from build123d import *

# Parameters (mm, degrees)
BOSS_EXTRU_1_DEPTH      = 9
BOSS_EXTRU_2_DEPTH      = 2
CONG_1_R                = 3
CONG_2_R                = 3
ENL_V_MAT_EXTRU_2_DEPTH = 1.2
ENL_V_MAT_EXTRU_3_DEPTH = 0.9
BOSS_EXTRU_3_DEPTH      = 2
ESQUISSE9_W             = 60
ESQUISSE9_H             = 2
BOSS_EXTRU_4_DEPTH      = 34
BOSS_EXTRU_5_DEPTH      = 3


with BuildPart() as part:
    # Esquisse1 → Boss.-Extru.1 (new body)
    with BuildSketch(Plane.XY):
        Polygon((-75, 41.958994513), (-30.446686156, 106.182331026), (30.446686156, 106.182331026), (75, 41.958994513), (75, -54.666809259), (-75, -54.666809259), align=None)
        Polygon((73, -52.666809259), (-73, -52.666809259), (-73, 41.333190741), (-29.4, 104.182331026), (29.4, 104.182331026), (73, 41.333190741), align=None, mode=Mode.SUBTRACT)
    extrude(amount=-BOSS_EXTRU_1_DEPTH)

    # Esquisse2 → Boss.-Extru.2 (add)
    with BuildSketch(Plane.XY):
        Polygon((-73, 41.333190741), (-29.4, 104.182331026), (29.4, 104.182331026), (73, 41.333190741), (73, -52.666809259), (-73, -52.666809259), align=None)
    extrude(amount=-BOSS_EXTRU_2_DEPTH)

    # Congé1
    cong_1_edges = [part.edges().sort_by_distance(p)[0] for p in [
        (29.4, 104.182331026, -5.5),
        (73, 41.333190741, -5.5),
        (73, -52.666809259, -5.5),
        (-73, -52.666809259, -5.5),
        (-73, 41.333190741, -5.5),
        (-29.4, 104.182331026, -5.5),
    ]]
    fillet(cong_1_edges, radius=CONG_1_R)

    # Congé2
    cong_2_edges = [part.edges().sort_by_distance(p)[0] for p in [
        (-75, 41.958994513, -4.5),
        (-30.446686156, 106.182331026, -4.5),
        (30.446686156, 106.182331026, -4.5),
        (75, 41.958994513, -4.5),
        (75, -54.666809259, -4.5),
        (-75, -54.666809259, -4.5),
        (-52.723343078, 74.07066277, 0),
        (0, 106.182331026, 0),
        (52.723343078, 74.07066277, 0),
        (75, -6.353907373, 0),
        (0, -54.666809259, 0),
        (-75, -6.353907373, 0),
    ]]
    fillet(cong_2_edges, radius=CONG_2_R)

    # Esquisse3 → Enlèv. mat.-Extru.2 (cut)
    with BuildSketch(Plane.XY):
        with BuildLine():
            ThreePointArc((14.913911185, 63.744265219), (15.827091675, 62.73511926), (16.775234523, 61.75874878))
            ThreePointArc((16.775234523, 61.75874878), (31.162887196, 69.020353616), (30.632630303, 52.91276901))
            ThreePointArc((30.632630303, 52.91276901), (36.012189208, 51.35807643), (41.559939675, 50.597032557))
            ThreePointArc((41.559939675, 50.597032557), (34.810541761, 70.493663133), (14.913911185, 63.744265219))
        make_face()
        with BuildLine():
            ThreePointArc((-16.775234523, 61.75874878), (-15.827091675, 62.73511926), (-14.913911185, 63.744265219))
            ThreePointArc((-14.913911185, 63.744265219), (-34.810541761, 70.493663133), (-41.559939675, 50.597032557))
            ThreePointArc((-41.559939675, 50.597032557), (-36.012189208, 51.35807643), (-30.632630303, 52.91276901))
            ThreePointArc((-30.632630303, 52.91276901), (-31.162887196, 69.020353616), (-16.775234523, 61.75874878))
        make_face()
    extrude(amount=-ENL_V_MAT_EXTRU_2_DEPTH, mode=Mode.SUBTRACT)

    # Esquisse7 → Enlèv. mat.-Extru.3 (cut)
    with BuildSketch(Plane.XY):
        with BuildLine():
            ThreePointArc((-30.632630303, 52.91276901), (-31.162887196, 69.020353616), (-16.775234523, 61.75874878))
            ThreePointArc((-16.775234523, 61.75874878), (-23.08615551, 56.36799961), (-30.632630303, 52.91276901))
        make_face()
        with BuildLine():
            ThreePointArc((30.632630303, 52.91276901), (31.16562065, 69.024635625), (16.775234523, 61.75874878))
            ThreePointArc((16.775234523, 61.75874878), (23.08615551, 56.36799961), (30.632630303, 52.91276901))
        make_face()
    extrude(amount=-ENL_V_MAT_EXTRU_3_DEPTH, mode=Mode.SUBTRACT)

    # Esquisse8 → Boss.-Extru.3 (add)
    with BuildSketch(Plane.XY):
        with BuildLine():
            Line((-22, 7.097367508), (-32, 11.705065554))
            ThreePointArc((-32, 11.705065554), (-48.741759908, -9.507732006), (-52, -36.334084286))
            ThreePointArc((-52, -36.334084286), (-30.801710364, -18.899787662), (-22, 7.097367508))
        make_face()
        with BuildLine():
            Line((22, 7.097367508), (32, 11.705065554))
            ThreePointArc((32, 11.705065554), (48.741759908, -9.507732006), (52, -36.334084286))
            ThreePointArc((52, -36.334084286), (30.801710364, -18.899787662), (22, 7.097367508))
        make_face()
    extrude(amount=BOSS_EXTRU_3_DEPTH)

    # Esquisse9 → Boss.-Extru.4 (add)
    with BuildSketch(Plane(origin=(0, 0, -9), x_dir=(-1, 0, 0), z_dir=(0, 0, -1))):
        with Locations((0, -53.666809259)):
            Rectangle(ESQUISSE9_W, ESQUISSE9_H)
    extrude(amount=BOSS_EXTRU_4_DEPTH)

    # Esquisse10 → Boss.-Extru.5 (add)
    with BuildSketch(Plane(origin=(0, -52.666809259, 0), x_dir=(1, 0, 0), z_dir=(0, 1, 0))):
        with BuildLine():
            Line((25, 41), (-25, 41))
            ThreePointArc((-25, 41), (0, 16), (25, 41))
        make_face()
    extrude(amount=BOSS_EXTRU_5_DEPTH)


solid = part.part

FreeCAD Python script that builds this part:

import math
import FreeCAD as App
import Part
import Sketcher

V = App.Vector
Q = App.Units.Quantity


def edges_at(feature, points):
    """Names of the edges that pass closest to the given points."""
    edges = feature.Shape.Edges
    near = lambda p: min(range(len(edges)), key=lambda i: edges[i].distToShape(Part.Vertex(*p))[0])
    return sorted({f"Edge{near(p) + 1}" for p in points})

doc = App.newDocument("Part")
body = doc.addObject("PartDesign::Body", "Body")

# Sketch on XY plane
sketch1 = body.newObject("Sketcher::SketchObject", "Sketch")
sketch1.AttachmentSupport = (doc.getObject("XY_Plane"), [""])
sketch1.MapMode = "FlatFace"
sketch1.addGeometry([
    Part.LineSegment(V(-30.446686, 106.182331, 0), V(-75, 41.958995, 0)),  # 0
    Part.LineSegment(V(-75, 41.958995, 0), V(-75, -54.666809, 0)),  # 1
    Part.LineSegment(V(-75, -54.666809, 0), V(75, -54.666809, 0)),  # 2
    Part.LineSegment(V(75, -54.666809, 0), V(75, 41.958995, 0)),  # 3
    Part.LineSegment(V(75, 41.958995, 0), V(30.446686, 106.182331, 0)),  # 4
    Part.LineSegment(V(30.446686, 106.182331, 0), V(-30.446686, 106.182331, 0)),  # 5
    Part.LineSegment(V(73, -52.666809, 0), V(-73, -52.666809, 0)),  # 6
    Part.LineSegment(V(-73, -52.666809, 0), V(-73, 41.333191, 0)),  # 7
    Part.LineSegment(V(-73, 41.333191, 0), V(-29.4, 104.182331, 0)),  # 8
    Part.LineSegment(V(-29.4, 104.182331, 0), V(29.4, 104.182331, 0)),  # 9
    Part.LineSegment(V(29.4, 104.182331, 0), V(73, 41.333191, 0)),  # 10
    Part.LineSegment(V(73, 41.333191, 0), V(73, -52.666809, 0)),  # 11
], False)
sketch1.addConstraint([
    Sketcher.Constraint("Coincident", 0, 2, 1, 1),
    Sketcher.Constraint("Coincident", 1, 2, 2, 1),
    Sketcher.Constraint("Coincident", 2, 2, 3, 1),
    Sketcher.Constraint("Coincident", 3, 2, 4, 1),
    Sketcher.Constraint("Coincident", 4, 2, 5, 1),
    Sketcher.Constraint("Coincident", 5, 2, 0, 1),
    Sketcher.Constraint("Coincident", 6, 2, 7, 1),
    Sketcher.Constraint("Coincident", 7, 2, 8, 1),
    Sketcher.Constraint("Coincident", 8, 2, 9, 1),
    Sketcher.Constraint("Coincident", 9, 2, 10, 1),
    Sketcher.Constraint("Coincident", 10, 2, 11, 1),
    Sketcher.Constraint("Coincident", 11, 2, 6, 1),
    Sketcher.Constraint("Vertical", 1),
    Sketcher.Constraint("Horizontal", 2),
    Sketcher.Constraint("Vertical", 3),
    Sketcher.Constraint("Horizontal", 5),
    Sketcher.Constraint("Horizontal", 6),
    Sketcher.Constraint("Vertical", 7),
    Sketcher.Constraint("Horizontal", 9),
    Sketcher.Constraint("Vertical", 11),
    Sketcher.Constraint("Symmetric", 0, 2, 3, 2, -2),
    Sketcher.Constraint("Symmetric", 7, 2, 10, 2, -2),
    Sketcher.Constraint("Parallel", 0, 8),
    Sketcher.Constraint("Parallel", 4, 10),
    Sketcher.Constraint("Equal", 0, 4),
    Sketcher.Constraint("DistanceX", 2, 1, 2, 2, Q("150 mm")),
    Sketcher.Constraint("DistanceX", 6, 2, 6, 1, Q("146 mm")),
    Sketcher.Constraint("DistanceY", 7, 1, 7, 2, Q("94 mm")),
    Sketcher.Constraint("DistanceX", 9, 1, 9, 2, Q("58.8 mm")),
    Sketcher.Constraint("DistanceY", 1, 2, 6, 2, Q("2 mm")),
    Sketcher.Constraint("DistanceY", 8, 2, 5, 2, Q("2 mm")),
    Sketcher.Constraint("Angle", 0, Q("-124.75 deg")),
    Sketcher.Constraint("DistanceX", 5, 2, 5, 1, Q("60.893372 mm")),
    Sketcher.Constraint("DistanceY", 1, 2, -1, 1, Q("54.666809 mm")),
])
pad1 = body.newObject("PartDesign::Pad", "Pad")
pad1.Profile = sketch1
pad1.Length = 9
pad1.Reversed = True

# Sketch on XY plane
sketch2 = body.newObject("Sketcher::SketchObject", "Sketch001")
sketch2.AttachmentSupport = (doc.getObject("XY_Plane"), [""])
sketch2.MapMode = "FlatFace"
sketch2.addGeometry([
    Part.LineSegment(V(-29.4, 104.182331, 0), V(-73, 41.333191, 0)),  # 0
    Part.LineSegment(V(-73, 41.333191, 0), V(-73, -52.666809, 0)),  # 1
    Part.LineSegment(V(-73, -52.666809, 0), V(73, -52.666809, 0)),  # 2
    Part.LineSegment(V(73, -52.666809, 0), V(73, 41.333191, 0)),  # 3
    Part.LineSegment(V(73, 41.333191, 0), V(29.4, 104.182331, 0)),  # 4
    Part.LineSegment(V(29.4, 104.182331, 0), V(-29.4, 104.182331, 0)),  # 5
], False)
sketch2.addConstraint([
    Sketcher.Constraint("Coincident", 0, 2, 1, 1),
    Sketcher.Constraint("Coincident", 1, 2, 2, 1),
    Sketcher.Constraint("Coincident", 2, 2, 3, 1),
    Sketcher.Constraint("Coincident", 3, 2, 4, 1),
    Sketcher.Constraint("Coincident", 4, 2, 5, 1),
    Sketcher.Constraint("Coincident", 5, 2, 0, 1),
    Sketcher.Constraint("Vertical", 1),
    Sketcher.Constraint("Horizontal", 2),
    Sketcher.Constraint("Vertical", 3),
    Sketcher.Constraint("Horizontal", 5),
    Sketcher.Constraint("Symmetric", 0, 2, 3, 2, -2),
    Sketcher.Constraint("Equal", 0, 4),
    Sketcher.Constraint("DistanceX", 2, 1, 2, 2, Q("146 mm")),
    Sketcher.Constraint("DistanceY", 1, 2, 1, 1, Q("94 mm")),
    Sketcher.Constraint("DistanceX", 5, 2, 5, 1, Q("58.8 mm")),
    Sketcher.Constraint("Angle", 0, Q("-124.75 deg")),
    Sketcher.Constraint("DistanceY", -1, 1, 0, 2, Q("41.333191 mm")),
])
pad2 = body.newObject("PartDesign::Pad", "Pad001")
pad2.Profile = sketch2
pad2.Length = 2
pad2.Reversed = True
doc.recompute()

fillet = body.newObject("PartDesign::Fillet", "Fillet")
fillet.Base = (pad2, edges_at(pad2, [
    (29.4, 104.182, -5.5),
    (73, 41.333, -5.5),
    (73, -52.667, -5.5),
    (-73, -52.667, -5.5),
    (-73, 41.333, -5.5),
    (-29.4, 104.182, -5.5),
]))
fillet.Radius = 3
doc.recompute()

fillet2 = body.newObject("PartDesign::Fillet", "Fillet001")
fillet2.Base = (fillet, edges_at(fillet, [
    (-75, 41.959, -4.5),
    (-30.447, 106.182, -4.5),
    (30.447, 106.182, -4.5),
    (75, 41.959, -4.5),
    (75, -54.667, -4.5),
    (-75, -54.667, -4.5),
    (-52.723, 74.071, 0),
    (0, 106.182, 0),
    (52.723, 74.071, 0),
    (75, -6.354, 0),
    (0, -54.667, 0),
    (-75, -6.354, 0),
]))
fillet2.Radius = 3

# Sketch on XY plane
sketch3 = body.newObject("Sketcher::SketchObject", "Sketch002")
sketch3.AttachmentSupport = (doc.getObject("XY_Plane"), [""])
sketch3.MapMode = "FlatFace"
sketch3.addGeometry([
    Part.ArcOfCircle(Part.Circle(V(44.025261, 89.169506, 0), V(0, 0, 1), 38.651178), math.radians(-138.86672), math.radians(-134.831521)),  # 0
    Part.ArcOfCircle(Part.Circle(V(26.122044, 61.123776, 0), V(0, 0, 1), 9.368353), math.radians(-61.218506), math.radians(176.113602)),  # 1
    Part.ArcOfCircle(Part.Circle(V(44.02526, 89.169506, 0), V(0, 0, 1), 38.651177), math.radians(-110.273383), math.radians(-93.657027)),  # 2
    Part.ArcOfCircle(Part.Circle(V(28.236925, 57.170649, 0), V(0, 0, 1), 14.856485), math.radians(-26.261874), math.radians(153.738126)),  # 3
    Part.ArcOfCircle(Part.Circle(V(-44.025261, 89.169506, 0), V(0, 0, 1), 38.651178), math.radians(-45.168479), math.radians(-41.13328)),  # 4
    Part.ArcOfCircle(Part.Circle(V(-28.236925, 57.170649, 0), V(0, 0, 1), 14.856485), math.radians(26.261874), math.radians(206.261874)),  # 5
    Part.ArcOfCircle(Part.Circle(V(-44.02526, 89.169506, 0), V(0, 0, 1), 38.651177), math.radians(-86.342973), math.radians(-69.726617)),  # 6
    Part.ArcOfCircle(Part.Circle(V(-26.122044, 61.123776, 0), V(0, 0, 1), 9.368353), math.radians(3.886398), math.radians(241.218506)),  # 7
], False)
sketch3.addConstraint([
    Sketcher.Constraint("Coincident", 0, 2, 1, 2),
    Sketcher.Constraint("Coincident", 1, 1, 2, 1),
    Sketcher.Constraint("Coincident", 2, 2, 3, 1),
    Sketcher.Constraint("Coincident", 3, 2, 0, 1),
    Sketcher.Constraint("Coincident", 4, 2, 5, 1),
    Sketcher.Constraint("Coincident", 5, 2, 6, 1),
    Sketcher.Constraint("Coincident", 6, 2, 7, 2),
    Sketcher.Constraint("Coincident", 7, 1, 4, 1),
    Sketcher.Constraint("Coincident", 2, 3, 0, 3),
    Sketcher.Constraint("Coincident", 6, 3, 4, 3),
    Sketcher.Constraint("Equal", 0, 2),
    Sketcher.Constraint("Equal", 2, 4),
    Sketcher.Constraint("Equal", 3, 5),
    Sketcher.Constraint("Equal", 4, 6),
    Sketcher.Constraint("Equal", 1, 7),
    Sketcher.Constraint("Symmetric", 0, 3, 4, 3, -2),
    Sketcher.Constraint("Symmetric", 3, 3, 5, 3, -2),
    Sketcher.Constraint("Symmetric", 1, 3, 7, 3, -2),
    Sketcher.Constraint("Radius", 0, Q("38.651178 mm")),
    Sketcher.Constraint("Radius", 1, Q("9.368353 mm")),
    Sketcher.Constraint("Radius", 3, Q("14.856485 mm")),
    Sketcher.Constraint("DistanceY", 3, 3, 0, 2, Q("4.5881 mm")),
    Sketcher.Constraint("DistanceX", -1, 1, 0, 3, Q("44.025261 mm")),
    Sketcher.Constraint("DistanceY", -1, 1, 3, 3, Q("57.170649 mm")),
    Sketcher.Constraint("DistanceX", -1, 1, 1, 1, Q("30.63263 mm")),
    Sketcher.Constraint("DistanceY", -1, 1, 1, 1, Q("52.912769 mm")),
    Sketcher.Constraint("DistanceX", -1, 1, 2, 2, Q("41.55994 mm")),
])
pocket1 = body.newObject("PartDesign::Pocket", "Pocket")
pocket1.Profile = sketch3
pocket1.Length = 1.2

# Sketch on XY plane
sketch4 = body.newObject("Sketcher::SketchObject", "Sketch003")
sketch4.AttachmentSupport = (doc.getObject("XY_Plane"), [""])
sketch4.MapMode = "FlatFace"
sketch4.addGeometry([
    Part.ArcOfCircle(Part.Circle(V(-26.122044, 61.123776, 0), V(0, 0, 1), 9.368353), math.radians(3.886398), math.radians(241.218506)),
    Part.ArcOfCircle(Part.Circle(V(-39.2283, 81.654976, 0), V(0, 0, 1), 30), math.radians(-73.350134), math.radians(-41.544962)),
    Part.ArcOfCircle(Part.Circle(V(26.123891, 61.12667, 0), V(0, 0, 1), 9.37), math.radians(-61.236924), math.radians(176.13202)),
    Part.ArcOfCircle(Part.Circle(V(39.2283, 81.654976, 0), V(0, 0, 1), 30), math.radians(-138.455038), math.radians(-106.649866)),
], False)
sketch4.addConstraint([
    Sketcher.Constraint("Coincident", 0, 1, 1, 2),
    Sketcher.Constraint("Coincident", 1, 1, 0, 2),
    Sketcher.Constraint("Coincident", 2, 1, 3, 2),
    Sketcher.Constraint("Coincident", 3, 1, 2, 2),
    Sketcher.Constraint("Equal", 1, 3),
    Sketcher.Constraint("Symmetric", 1, 3, 3, 3, -2),
    Sketcher.Constraint("Horizontal", 1, 1, 2, 1),
    Sketcher.Constraint("Horizontal", 0, 1, 3, 1),
    Sketcher.Constraint("Radius", 1, Q("30 mm")),
    Sketcher.Constraint("Radius", 2, Q("9.37 mm")),
    Sketcher.Constraint("Radius", 0, Q("9.368353 mm")),
    Sketcher.Constraint("DistanceX", 1, 3, -1, 1, Q("39.2283 mm")),
    Sketcher.Constraint("DistanceY", 0, 3, 1, 3, Q("20.5312 mm")),
    Sketcher.Constraint("DistanceY", 1, 1, 2, 3, Q("8.213901 mm")),
    Sketcher.Constraint("DistanceY", -1, 1, 2, 3, Q("61.12667 mm")),
])
pocket2 = body.newObject("PartDesign::Pocket", "Pocket001")
pocket2.Profile = sketch4
pocket2.Length = 0.9

# Sketch on XY plane
sketch5 = body.newObject("Sketcher::SketchObject", "Sketch004")
sketch5.AttachmentSupport = (doc.getObject("XY_Plane"), [""])
sketch5.MapMode = "FlatFace"
sketch5.addGeometry([
    Part.LineSegment(V(-22, 7.097368, 0), V(-32, 11.705066, 0)),  # 0
    Part.ArcOfCircle(Part.Circle(V(-2.582351, -28.725145, 0), V(0, 0, 1), 50), math.radians(126.040218), math.radians(188.753212)),  # 1
    Part.ArcOfCircle(Part.Circle(V(-71.94141, 9.517199, 0), V(0, 0, 1), 50), math.radians(-66.495056), math.radians(-2.774006)),  # 2
    Part.LineSegment(V(32, 11.705066, 0), V(22, 7.097368, 0)),  # 3
    Part.ArcOfCircle(Part.Circle(V(71.94141, 9.517199, 0), V(0, 0, 1), 50), math.radians(-177.225994), math.radians(-113.504944)),  # 4
    Part.ArcOfCircle(Part.Circle(V(2.582351, -28.725145, 0), V(0, 0, 1), 50), math.radians(-8.753212), math.radians(53.959782)),  # 5
], False)
sketch5.addConstraint([
    Sketcher.Constraint("Coincident", 0, 2, 1, 1),
    Sketcher.Constraint("Coincident", 1, 2, 2, 1),
    Sketcher.Constraint("Coincident", 2, 2, 0, 1),
    Sketcher.Constraint("Coincident", 3, 2, 4, 1),
    Sketcher.Constraint("Coincident", 4, 2, 5, 1),
    Sketcher.Constraint("Coincident", 5, 2, 3, 1),
    Sketcher.Constraint("Equal", 1, 2),
    Sketcher.Constraint("Equal", 2, 4),
    Sketcher.Constraint("Equal", 4, 5),
    Sketcher.Constraint("Symmetric", 2, 3, 4, 3, -2),
    Sketcher.Constraint("Symmetric", 1, 3, 5, 3, -2),
    Sketcher.Constraint("Horizontal", 2, 2, 3, 2),
    Sketcher.Constraint("Horizontal", 0, 2, 5, 2),
    Sketcher.Constraint("Radius", 1, Q("50 mm")),
    Sketcher.Constraint("DistanceX", 0, 2, -1, 1, Q("32 mm")),
    Sketcher.Constraint("DistanceX", 1, 2, -1, 1, Q("52 mm")),
    Sketcher.Constraint("DistanceX", 2, 2, -1, 1, Q("22 mm")),
    Sketcher.Constraint("DistanceY", -1, 1, 2, 3, Q("9.517199 mm")),
    Sketcher.Constraint("DistanceX", 1, 3, 5, 3, Q("5.164702 mm")),
    Sketcher.Constraint("DistanceY", 2, 2, 0, 2, Q("4.607698 mm")),
])
pad3 = body.newObject("PartDesign::Pad", "Pad002")
pad3.Profile = sketch5
pad3.Length = 2

# Sketch on XY plane
sketch6 = body.newObject("Sketcher::SketchObject", "Sketch005")
sketch6.AttachmentSupport = (doc.getObject("XY_Plane"), [""])
sketch6.MapMode = "FlatFace"
sketch6.AttachmentOffset = App.Placement(V(0, 0, -9), App.Rotation())
sketch6.addGeometry([
    Part.LineSegment(V(30, -52.666809, 0), V(30, -54.666809, 0)),
    Part.LineSegment(V(30, -54.666809, 0), V(-30, -54.666809, 0)),
    Part.LineSegment(V(-30, -54.666809, 0), V(-30, -52.666809, 0)),
    Part.LineSegment(V(-30, -52.666809, 0), V(30, -52.666809, 0)),
], False)
sketch6.addConstraint([
    Sketcher.Constraint("Coincident", 0, 2, 1, 1),
    Sketcher.Constraint("Coincident", 1, 2, 2, 1),
    Sketcher.Constraint("Coincident", 2, 2, 3, 1),
    Sketcher.Constraint("Coincident", 3, 2, 0, 1),
    Sketcher.Constraint("Vertical", 0),
    Sketcher.Constraint("Horizontal", 1),
    Sketcher.Constraint("Vertical", 2),
    Sketcher.Constraint("Horizontal", 3),
    Sketcher.Constraint("DistanceX", 1, 2, 1, 1, Q("60 mm")),
    Sketcher.Constraint("DistanceY", 0, 2, 0, 1, Q("2 mm")),
    Sketcher.Constraint("DistanceX", -1, 1, 0, 2, Q("30 mm")),
    Sketcher.Constraint("DistanceY", 0, 2, -1, 1, Q("54.666809 mm")),
])
pad4 = body.newObject("PartDesign::Pad", "Pad003")
pad4.Profile = sketch6
pad4.Length = 34
pad4.Reversed = True

# Sketch on XZ plane
sketch7 = body.newObject("Sketcher::SketchObject", "Sketch006")
sketch7.AttachmentSupport = (doc.getObject("XZ_Plane"), [""])
sketch7.MapMode = "FlatFace"
sketch7.AttachmentOffset = App.Placement(V(0, 0, 52.666809), App.Rotation())
sketch7.addGeometry([
    Part.LineSegment(V(25, -41, 0), V(-25, -41, 0)),
    Part.ArcOfCircle(Part.Circle(V(0, -41, 0), V(0, 0, 1), 25), math.radians(0), math.radians(180)),
], False)
sketch7.addConstraint([
    Sketcher.Constraint("Coincident", 0, 1, 1, 1),
    Sketcher.Constraint("Coincident", 1, 2, 0, 2),
    Sketcher.Constraint("Horizontal", 0),
    Sketcher.Constraint("PointOnObject", 1, 3, -2),
    Sketcher.Constraint("Horizontal", 1, 3, 0, 1),
    Sketcher.Constraint("Radius", 1, Q("25 mm")),
    Sketcher.Constraint("DistanceY", 1, 3, -1, 1, Q("41 mm")),
])
pad5 = body.newObject("PartDesign::Pad", "Pad004")
pad5.Profile = sketch7
pad5.Length = 3
pad5.Reversed = True

doc.recompute()
